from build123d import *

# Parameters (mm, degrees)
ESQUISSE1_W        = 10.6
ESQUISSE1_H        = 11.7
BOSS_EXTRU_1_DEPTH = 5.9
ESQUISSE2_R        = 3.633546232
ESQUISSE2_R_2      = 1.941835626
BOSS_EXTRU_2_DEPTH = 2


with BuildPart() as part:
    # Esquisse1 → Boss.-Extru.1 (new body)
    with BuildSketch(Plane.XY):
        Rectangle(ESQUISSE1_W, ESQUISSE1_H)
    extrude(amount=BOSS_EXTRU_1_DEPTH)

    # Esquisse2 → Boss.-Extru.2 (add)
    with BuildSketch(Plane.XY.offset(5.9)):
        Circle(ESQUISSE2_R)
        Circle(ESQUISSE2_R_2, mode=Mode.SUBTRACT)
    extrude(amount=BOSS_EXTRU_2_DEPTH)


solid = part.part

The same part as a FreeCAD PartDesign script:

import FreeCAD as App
import Part
import Sketcher

V = App.Vector
Q = App.Units.Quantity

doc = App.newDocument("Part")
params = doc.addObject("Spreadsheet::Sheet", "Params")
for row, (alias, value) in enumerate([
    ("sketch1_width", "10.6 mm"),
    ("sketch1_height", "11.7 mm"),
    ("pad1_length", "5.9 mm"),
    ("pad2_length", "2 mm"),
], start=1):
    params.set(f"A{row}", alias)
    params.set(f"B{row}", "=" + value)
    params.setAlias(f"B{row}", alias)

body = doc.addObject("PartDesign::Body", "Body")

# Sketch on XY plane
sketch1 = body.newObject("Sketcher::SketchObject", "Sketch")
sketch1.AttachmentSupport = (doc.getObject("XY_Plane"), [""])
sketch1.MapMode = "FlatFace"
sketch1.addGeometry([
    Part.LineSegment(V(-5.3, 5.85, 0), V(-5.3, -5.85, 0)),
    Part.LineSegment(V(-5.3, -5.85, 0), V(5.3, -5.85, 0)),
    Part.LineSegment(V(5.3, -5.85, 0), V(5.3, 5.85, 0)),
    Part.LineSegment(V(5.3, 5.85, 0), V(-5.3, 5.85, 0)),
], False)
sketch1.addConstraint([
    Sketcher.Constraint("Coincident", 0, 2, 1, 1),
    Sketcher.Constraint("Coincident", 1, 2, 2, 1),
    Sketcher.Constraint("Coincident", 2, 2, 3, 1),
    Sketcher.Constraint("Coincident", 3, 2, 0, 1),
    Sketcher.Constraint("Vertical", 0),
    Sketcher.Constraint("Horizontal", 1),
    Sketcher.Constraint("Vertical", 2),
    Sketcher.Constraint("Horizontal", 3),
    Sketcher.Constraint("Symmetric", 0, 2, 2, 2, -1, 1),
    Sketcher.Constraint("DistanceX", 1, 1, 1, 2, Q("10.6 mm")),
    Sketcher.Constraint("DistanceY", 0, 2, 0, 1, Q("11.7 mm")),
])
sketch1.setExpression("Constraints[9]", "Params.sketch1_width")
sketch1.setExpression("Constraints[10]", "Params.sketch1_height")
pad1 = body.newObject("PartDesign::Pad", "Pad")
pad1.Profile = sketch1
pad1.setExpression("Length", "Params.pad1_length")

# Sketch on XY plane
sketch2 = body.newObject("Sketcher::SketchObject", "Sketch001")
sketch2.AttachmentSupport = (doc.getObject("XY_Plane"), [""])
sketch2.MapMode = "FlatFace"
sketch2.AttachmentOffset = App.Placement(V(0, 0, 5.9), App.Rotation())
sketch2.addGeometry([
    Part.Circle(V(0, 0, 0), V(0, 0, 1), 3.633546),
    Part.Circle(V(0, 0, 0), V(0, 0, 1), 1.941836),
], False)
sketch2.addConstraint([
    Sketcher.Constraint("Coincident", 0, 3, -1, 1),
    Sketcher.Constraint("Coincident", 1, 3, -1, 1),
    Sketcher.Constraint("Diameter", 1, Q("3.883671 mm")),
    Sketcher.Constraint("Diameter", 0, Q("7.267092 mm")),
])
pad2 = body.newObject("PartDesign::Pad", "Pad001")
pad2.Profile = sketch2
pad2.setExpression("Length", "Params.pad2_length")

doc.recompute()
